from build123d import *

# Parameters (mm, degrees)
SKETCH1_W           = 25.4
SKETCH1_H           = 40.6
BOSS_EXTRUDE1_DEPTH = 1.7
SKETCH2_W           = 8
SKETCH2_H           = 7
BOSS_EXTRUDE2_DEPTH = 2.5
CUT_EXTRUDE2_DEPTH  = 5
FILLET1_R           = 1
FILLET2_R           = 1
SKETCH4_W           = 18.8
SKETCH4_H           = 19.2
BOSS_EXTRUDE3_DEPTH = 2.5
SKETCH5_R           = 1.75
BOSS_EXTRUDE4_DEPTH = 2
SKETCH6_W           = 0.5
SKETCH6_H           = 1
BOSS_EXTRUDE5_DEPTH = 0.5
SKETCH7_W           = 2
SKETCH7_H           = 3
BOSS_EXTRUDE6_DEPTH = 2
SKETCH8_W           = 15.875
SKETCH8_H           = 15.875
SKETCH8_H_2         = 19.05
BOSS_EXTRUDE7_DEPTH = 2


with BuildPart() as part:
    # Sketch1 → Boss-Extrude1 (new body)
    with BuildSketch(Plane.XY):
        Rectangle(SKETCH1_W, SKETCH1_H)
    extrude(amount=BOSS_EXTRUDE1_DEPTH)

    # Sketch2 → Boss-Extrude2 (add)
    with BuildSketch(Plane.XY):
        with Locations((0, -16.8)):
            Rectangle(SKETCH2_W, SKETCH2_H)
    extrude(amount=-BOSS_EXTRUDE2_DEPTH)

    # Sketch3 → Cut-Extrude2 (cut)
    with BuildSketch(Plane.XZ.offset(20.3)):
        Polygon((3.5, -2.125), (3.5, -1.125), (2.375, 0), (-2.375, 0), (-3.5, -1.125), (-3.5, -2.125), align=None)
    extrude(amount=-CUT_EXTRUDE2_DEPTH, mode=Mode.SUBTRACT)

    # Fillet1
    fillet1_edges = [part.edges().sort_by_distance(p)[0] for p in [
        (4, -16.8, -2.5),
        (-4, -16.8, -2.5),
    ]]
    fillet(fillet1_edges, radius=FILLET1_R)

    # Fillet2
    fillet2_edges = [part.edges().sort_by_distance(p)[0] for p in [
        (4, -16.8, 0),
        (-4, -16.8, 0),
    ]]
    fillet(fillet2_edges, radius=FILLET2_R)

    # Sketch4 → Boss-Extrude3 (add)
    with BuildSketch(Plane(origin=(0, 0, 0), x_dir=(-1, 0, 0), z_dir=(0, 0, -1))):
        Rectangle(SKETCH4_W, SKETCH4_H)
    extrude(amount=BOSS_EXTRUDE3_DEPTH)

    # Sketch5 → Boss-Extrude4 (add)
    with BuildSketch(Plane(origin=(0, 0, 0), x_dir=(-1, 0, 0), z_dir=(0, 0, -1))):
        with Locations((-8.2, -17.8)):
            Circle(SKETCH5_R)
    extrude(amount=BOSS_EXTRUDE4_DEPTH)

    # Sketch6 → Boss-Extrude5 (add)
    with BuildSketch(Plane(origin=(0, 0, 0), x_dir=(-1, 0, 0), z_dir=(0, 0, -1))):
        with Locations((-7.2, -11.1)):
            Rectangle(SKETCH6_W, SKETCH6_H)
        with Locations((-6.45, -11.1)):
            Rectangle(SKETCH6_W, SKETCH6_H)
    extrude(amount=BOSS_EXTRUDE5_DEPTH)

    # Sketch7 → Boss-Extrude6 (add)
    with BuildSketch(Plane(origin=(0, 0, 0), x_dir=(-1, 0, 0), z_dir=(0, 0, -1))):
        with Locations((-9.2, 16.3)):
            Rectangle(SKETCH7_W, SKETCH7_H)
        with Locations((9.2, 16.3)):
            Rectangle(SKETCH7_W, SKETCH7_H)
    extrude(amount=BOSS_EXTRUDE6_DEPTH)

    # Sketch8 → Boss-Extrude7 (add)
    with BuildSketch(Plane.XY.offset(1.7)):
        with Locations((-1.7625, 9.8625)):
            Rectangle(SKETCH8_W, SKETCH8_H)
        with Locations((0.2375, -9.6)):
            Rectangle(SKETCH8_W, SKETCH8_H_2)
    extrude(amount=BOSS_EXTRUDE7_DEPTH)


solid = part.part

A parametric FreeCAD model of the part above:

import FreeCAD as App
import Part
import Sketcher

V = App.Vector
Q = App.Units.Quantity


def edges_at(feature, points):
    """Names of the edges that pass closest to the given points."""
    edges = feature.Shape.Edges
    near = lambda p: min(range(len(edges)), key=lambda i: edges[i].distToShape(Part.Vertex(*p))[0])
    return sorted({f"Edge{near(p) + 1}" for p in points})


def add_polygon(sketch, points):
    """Adds a closed chain of lines whose ends are joined by coincident constraints."""
    first, n = sketch.GeometryCount, len(points)
    for a, b in zip(points, points[1:] + points[:1]):
        sketch.addGeometry(Part.LineSegment(App.Vector(*a, 0), App.Vector(*b, 0)), False)
    for i in range(n):
        sketch.addConstraint(Sketcher.Constraint("Coincident", first + i, 2, first + (i + 1) % n, 1))

doc = App.newDocument("Part")
body = doc.addObject("PartDesign::Body", "Body")

# Sketch on XY plane
sketch1 = body.newObject("Sketcher::SketchObject", "Sketch")
sketch1.AttachmentSupport = (doc.getObject("XY_Plane"), [""])
sketch1.MapMode = "FlatFace"
add_polygon(sketch1, [(-12.7, 20.3), (-12.7, -20.3), (12.7, -20.3), (12.7, 20.3)])  # lines 0-3
sketch1.addConstraint([
    Sketcher.Constraint("Vertical", 0),
    Sketcher.Constraint("Horizontal", 1),
    Sketcher.Constraint("Vertical", 2),
    Sketcher.Constraint("Horizontal", 3),
    Sketcher.Constraint("Symmetric", 0, 2, 2, 2, -1, 1),
    Sketcher.Constraint("DistanceX", 1, 1, 1, 2, Q("25.4 mm")),
    Sketcher.Constraint("DistanceY", 0, 2, 0, 1, Q("40.6 mm")),
])
pad1 = body.newObject("PartDesign::Pad", "Pad")
pad1.Profile = sketch1
pad1.Length = 1.7

# Sketch on XY plane
sketch2 = body.newObject("Sketcher::SketchObject", "Sketch001")
sketch2.AttachmentSupport = (doc.getObject("XY_Plane"), [""])
sketch2.MapMode = "FlatFace"
add_polygon(sketch2, [(-4, -13.3), (-4, -20.3), (4, -20.3), (4, -13.3)])  # lines 0-3
sketch2.addConstraint([
    Sketcher.Constraint("Vertical", 0),
    Sketcher.Constraint("Horizontal", 1),
    Sketcher.Constraint("Vertical", 2),
    Sketcher.Constraint("Horizontal", 3),
    Sketcher.Constraint("DistanceX", 1, 1, 1, 2, Q("8 mm")),
    Sketcher.Constraint("DistanceY", 0, 2, 0, 1, Q("7 mm")),
    Sketcher.Constraint("DistanceX", 0, 2, -1, 1, Q("4 mm")),
    Sketcher.Constraint("DistanceY", 0, 2, -1, 1, Q("20.3 mm")),
])
pad2 = body.newObject("PartDesign::Pad", "Pad001")
pad2.Profile = sketch2
pad2.Length = 2.5
pad2.Reversed = True

# Sketch on XZ plane
sketch3 = body.newObject("Sketcher::SketchObject", "Sketch002")
sketch3.AttachmentSupport = (doc.getObject("XZ_Plane"), [""])
sketch3.MapMode = "FlatFace"
sketch3.AttachmentOffset = App.Placement(V(0, 0, 20.3), App.Rotation())
add_polygon(sketch3, [(3.5, -2.125), (3.5, -1.125), (2.375, 0), (-2.375, 0), (-3.5, -1.125), (-3.5, -2.125)])  # lines 0-5
sketch3.addConstraint([
    Sketcher.Constraint("Vertical", 0),
    Sketcher.Constraint("Horizontal", 2),
    Sketcher.Constraint("Vertical", 4),
    Sketcher.Constraint("Horizontal", 5),
    Sketcher.Constraint("Symmetric", 1, 2, 2, 2, -1, 1),
    Sketcher.Constraint("Symmetric", 0, 2, 3, 2, -2),
    Sketcher.Constraint("Perpendicular", 1, 3),
    Sketcher.Constraint("DistanceX", 5, 1, 5, 2, Q("7 mm")),
    Sketcher.Constraint("DistanceY", 0, 1, 0, 2, Q("1 mm")),
    Sketcher.Constraint("DistanceX", 2, 2, 2, 1, Q("4.75 mm")),
])
pocket1 = body.newObject("PartDesign::Pocket", "Pocket")
pocket1.Profile = sketch3
pocket1.Length = 5
doc.recompute()

fillet = body.newObject("PartDesign::Fillet", "Fillet")
fillet.Base = (pocket1, edges_at(pocket1, [(4, -16.8, -2.5), (-4, -16.8, -2.5)]))
fillet.Radius = 1
doc.recompute()

fillet2 = body.newObject("PartDesign::Fillet", "Fillet001")
fillet2.Base = (fillet, edges_at(fillet, [(4, -16.8, 0), (-4, -16.8, 0)]))
fillet2.Radius = 1

# Sketch on XY plane
sketch4 = body.newObject("Sketcher::SketchObject", "Sketch003")
sketch4.AttachmentSupport = (doc.getObject("XY_Plane"), [""])
sketch4.MapMode = "FlatFace"
add_polygon(sketch4, [(9.4, 9.6), (9.4, -9.6), (-9.4, -9.6), (-9.4, 9.6)])  # lines 0-3
sketch4.addConstraint([
    Sketcher.Constraint("Vertical", 0),
    Sketcher.Constraint("Horizontal", 1),
    Sketcher.Constraint("Vertical", 2),
    Sketcher.Constraint("Horizontal", 3),
    Sketcher.Constraint("Symmetric", 0, 2, 2, 2, -1, 1),
    Sketcher.Constraint("DistanceX", 1, 2, 1, 1, Q("18.8 mm")),
    Sketcher.Constraint("DistanceY", 0, 2, 0, 1, Q("19.2 mm")),
])
pad3 = body.newObject("PartDesign::Pad", "Pad002")
pad3.Profile = sketch4
pad3.Length = 2.5
pad3.Reversed = True

# Sketch on XY plane
sketch5 = body.newObject("Sketcher::SketchObject", "Sketch004")
sketch5.AttachmentSupport = (doc.getObject("XY_Plane"), [""])
sketch5.MapMode = "FlatFace"
sketch5.addGeometry(Part.Circle(V(8.2, -17.8, 0), V(0, 0, 1), 1.75), False)
sketch5.addConstraint([
    Sketcher.Constraint("Diameter", 0, Q("3.5 mm")),
    Sketcher.Constraint("DistanceX", -1, 1, 0, 3, Q("8.2 mm")),
    Sketcher.Constraint("DistanceY", 0, 3, -1, 1, Q("17.8 mm")),
])
pad4 = body.newObject("PartDesign::Pad", "Pad003")
pad4.Profile = sketch5
pad4.Length = 2
pad4.Reversed = True

# Sketch on XY plane
sketch6 = body.newObject("Sketcher::SketchObject", "Sketch005")
sketch6.AttachmentSupport = (doc.getObject("XY_Plane"), [""])
sketch6.MapMode = "FlatFace"
add_polygon(sketch6, [(7.45, -10.6), (7.45, -11.6), (6.95, -11.6), (6.95, -10.6)])  # lines 0-3
add_polygon(sketch6, [(6.7, -10.6), (6.7, -11.6), (6.2, -11.6), (6.2, -10.6)])  # lines 4-7
sketch6.addConstraint([
    Sketcher.Constraint("Vertical", 0),
    Sketcher.Constraint("Horizontal", 1),
    Sketcher.Constraint("Vertical", 2),
    Sketcher.Constraint("Horizontal", 3),
    Sketcher.Constraint("Vertical", 4),
    Sketcher.Constraint("Horizontal", 5),
    Sketcher.Constraint("Vertical", 6),
    Sketcher.Constraint("Horizontal", 7),
    Sketcher.Constraint("Horizontal", 1, 2, 4, 2),
    Sketcher.Constraint("Horizontal", 3, 2, 6, 2),
    Sketcher.Constraint("Equal", 3, 5),
    Sketcher.Constraint("DistanceY", 0, 2, 0, 1, Q("1 mm")),
    Sketcher.Constraint("DistanceX", 1, 2, 1, 1, Q("0.5 mm")),
    Sketcher.Constraint("DistanceY", 0, 2, -1, 1, Q("11.6 mm")),
    Sketcher.Constraint("DistanceX", -1, 1, 4, 2, Q("6.7 mm")),
    Sketcher.Constraint("DistanceX", -1, 1, 0, 2, Q("7.45 mm")),
])
pad5 = body.newObject("PartDesign::Pad", "Pad004")
pad5.Profile = sketch6
pad5.Length = 0.5
pad5.Reversed = True

# Sketch on XY plane
sketch7 = body.newObject("Sketcher::SketchObject", "Sketch006")
sketch7.AttachmentSupport = (doc.getObject("XY_Plane"), [""])
sketch7.MapMode = "FlatFace"
add_polygon(sketch7, [(10.2, 17.8), (10.2, 14.8), (8.2, 14.8), (8.2, 17.8)])  # lines 0-3
add_polygon(sketch7, [(-8.2, 17.8), (-8.2, 14.8), (-10.2, 14.8), (-10.2, 17.8)])  # lines 4-7
sketch7.addConstraint([
    Sketcher.Constraint("Vertical", 0),
    Sketcher.Constraint("Horizontal", 1),
    Sketcher.Constraint("Vertical", 2),
    Sketcher.Constraint("Horizontal", 3),
    Sketcher.Constraint("Vertical", 4),
    Sketcher.Constraint("Horizontal", 5),
    Sketcher.Constraint("Vertical", 6),
    Sketcher.Constraint("Horizontal", 7),
    Sketcher.Constraint("Symmetric", 1, 2, 4, 2, -2),
    Sketcher.Constraint("Symmetric", 3, 2, 6, 2, -2),
    Sketcher.Constraint("DistanceX", 1, 2, 1, 1, Q("2 mm")),
    Sketcher.Constraint("DistanceY", 0, 2, 0, 1, Q("3 mm")),
    Sketcher.Constraint("DistanceX", -1, 1, 0, 2, Q("10.2 mm")),
    Sketcher.Constraint("DistanceY", -1, 1, 0, 2, Q("14.8 mm")),
])
pad6 = body.newObject("PartDesign::Pad", "Pad005")
pad6.Profile = sketch7
pad6.Length = 2
pad6.Reversed = True

# Sketch on XY plane
sketch8 = body.newObject("Sketcher::SketchObject", "Sketch007")
sketch8.AttachmentSupport = (doc.getObject("XY_Plane"), [""])
sketch8.MapMode = "FlatFace"
sketch8.AttachmentOffset = App.Placement(V(0, 0, 1.7), App.Rotation())
add_polygon(sketch8, [(-9.7, 17.8), (-9.7, 1.925), (6.175, 1.925), (6.175, 17.8)])  # lines 0-3
add_polygon(sketch8, [(-7.7, -0.075), (-7.7, -19.125), (8.175, -19.125), (8.175, -0.075)])  # lines 4-7
sketch8.addConstraint([
    Sketcher.Constraint("Vertical", 0),
    Sketcher.Constraint("Horizontal", 1),
    Sketcher.Constraint("Vertical", 2),
    Sketcher.Constraint("Horizontal", 3),
    Sketcher.Constraint("Vertical", 4),
    Sketcher.Constraint("Horizontal", 5),
    Sketcher.Constraint("Vertical", 6),
    Sketcher.Constraint("Horizontal", 7),
    Sketcher.Constraint("Equal", 3, 5),
    Sketcher.Constraint("Equal", 7, 0),
    Sketcher.Constraint("DistanceX", 0, 2, 4, 2, Q("2 mm")),
    Sketcher.Constraint("DistanceY", 6, 2, 1, 2, Q("2 mm")),
    Sketcher.Constraint("DistanceY", 4, 2, 4, 1, Q("19.05 mm")),
    Sketcher.Constraint("DistanceX", 0, 2, -1, 1, Q("9.7 mm")),
    Sketcher.Constraint("DistanceY", -1, 1, 2, 2, Q("17.8 mm")),
    Sketcher.Constraint("DistanceX", 1, 1, 1, 2, Q("15.875 mm")),
])
pad7 = body.newObject("PartDesign::Pad", "Pad006")
pad7.Profile = sketch8
pad7.Length = 2

doc.recompute()
